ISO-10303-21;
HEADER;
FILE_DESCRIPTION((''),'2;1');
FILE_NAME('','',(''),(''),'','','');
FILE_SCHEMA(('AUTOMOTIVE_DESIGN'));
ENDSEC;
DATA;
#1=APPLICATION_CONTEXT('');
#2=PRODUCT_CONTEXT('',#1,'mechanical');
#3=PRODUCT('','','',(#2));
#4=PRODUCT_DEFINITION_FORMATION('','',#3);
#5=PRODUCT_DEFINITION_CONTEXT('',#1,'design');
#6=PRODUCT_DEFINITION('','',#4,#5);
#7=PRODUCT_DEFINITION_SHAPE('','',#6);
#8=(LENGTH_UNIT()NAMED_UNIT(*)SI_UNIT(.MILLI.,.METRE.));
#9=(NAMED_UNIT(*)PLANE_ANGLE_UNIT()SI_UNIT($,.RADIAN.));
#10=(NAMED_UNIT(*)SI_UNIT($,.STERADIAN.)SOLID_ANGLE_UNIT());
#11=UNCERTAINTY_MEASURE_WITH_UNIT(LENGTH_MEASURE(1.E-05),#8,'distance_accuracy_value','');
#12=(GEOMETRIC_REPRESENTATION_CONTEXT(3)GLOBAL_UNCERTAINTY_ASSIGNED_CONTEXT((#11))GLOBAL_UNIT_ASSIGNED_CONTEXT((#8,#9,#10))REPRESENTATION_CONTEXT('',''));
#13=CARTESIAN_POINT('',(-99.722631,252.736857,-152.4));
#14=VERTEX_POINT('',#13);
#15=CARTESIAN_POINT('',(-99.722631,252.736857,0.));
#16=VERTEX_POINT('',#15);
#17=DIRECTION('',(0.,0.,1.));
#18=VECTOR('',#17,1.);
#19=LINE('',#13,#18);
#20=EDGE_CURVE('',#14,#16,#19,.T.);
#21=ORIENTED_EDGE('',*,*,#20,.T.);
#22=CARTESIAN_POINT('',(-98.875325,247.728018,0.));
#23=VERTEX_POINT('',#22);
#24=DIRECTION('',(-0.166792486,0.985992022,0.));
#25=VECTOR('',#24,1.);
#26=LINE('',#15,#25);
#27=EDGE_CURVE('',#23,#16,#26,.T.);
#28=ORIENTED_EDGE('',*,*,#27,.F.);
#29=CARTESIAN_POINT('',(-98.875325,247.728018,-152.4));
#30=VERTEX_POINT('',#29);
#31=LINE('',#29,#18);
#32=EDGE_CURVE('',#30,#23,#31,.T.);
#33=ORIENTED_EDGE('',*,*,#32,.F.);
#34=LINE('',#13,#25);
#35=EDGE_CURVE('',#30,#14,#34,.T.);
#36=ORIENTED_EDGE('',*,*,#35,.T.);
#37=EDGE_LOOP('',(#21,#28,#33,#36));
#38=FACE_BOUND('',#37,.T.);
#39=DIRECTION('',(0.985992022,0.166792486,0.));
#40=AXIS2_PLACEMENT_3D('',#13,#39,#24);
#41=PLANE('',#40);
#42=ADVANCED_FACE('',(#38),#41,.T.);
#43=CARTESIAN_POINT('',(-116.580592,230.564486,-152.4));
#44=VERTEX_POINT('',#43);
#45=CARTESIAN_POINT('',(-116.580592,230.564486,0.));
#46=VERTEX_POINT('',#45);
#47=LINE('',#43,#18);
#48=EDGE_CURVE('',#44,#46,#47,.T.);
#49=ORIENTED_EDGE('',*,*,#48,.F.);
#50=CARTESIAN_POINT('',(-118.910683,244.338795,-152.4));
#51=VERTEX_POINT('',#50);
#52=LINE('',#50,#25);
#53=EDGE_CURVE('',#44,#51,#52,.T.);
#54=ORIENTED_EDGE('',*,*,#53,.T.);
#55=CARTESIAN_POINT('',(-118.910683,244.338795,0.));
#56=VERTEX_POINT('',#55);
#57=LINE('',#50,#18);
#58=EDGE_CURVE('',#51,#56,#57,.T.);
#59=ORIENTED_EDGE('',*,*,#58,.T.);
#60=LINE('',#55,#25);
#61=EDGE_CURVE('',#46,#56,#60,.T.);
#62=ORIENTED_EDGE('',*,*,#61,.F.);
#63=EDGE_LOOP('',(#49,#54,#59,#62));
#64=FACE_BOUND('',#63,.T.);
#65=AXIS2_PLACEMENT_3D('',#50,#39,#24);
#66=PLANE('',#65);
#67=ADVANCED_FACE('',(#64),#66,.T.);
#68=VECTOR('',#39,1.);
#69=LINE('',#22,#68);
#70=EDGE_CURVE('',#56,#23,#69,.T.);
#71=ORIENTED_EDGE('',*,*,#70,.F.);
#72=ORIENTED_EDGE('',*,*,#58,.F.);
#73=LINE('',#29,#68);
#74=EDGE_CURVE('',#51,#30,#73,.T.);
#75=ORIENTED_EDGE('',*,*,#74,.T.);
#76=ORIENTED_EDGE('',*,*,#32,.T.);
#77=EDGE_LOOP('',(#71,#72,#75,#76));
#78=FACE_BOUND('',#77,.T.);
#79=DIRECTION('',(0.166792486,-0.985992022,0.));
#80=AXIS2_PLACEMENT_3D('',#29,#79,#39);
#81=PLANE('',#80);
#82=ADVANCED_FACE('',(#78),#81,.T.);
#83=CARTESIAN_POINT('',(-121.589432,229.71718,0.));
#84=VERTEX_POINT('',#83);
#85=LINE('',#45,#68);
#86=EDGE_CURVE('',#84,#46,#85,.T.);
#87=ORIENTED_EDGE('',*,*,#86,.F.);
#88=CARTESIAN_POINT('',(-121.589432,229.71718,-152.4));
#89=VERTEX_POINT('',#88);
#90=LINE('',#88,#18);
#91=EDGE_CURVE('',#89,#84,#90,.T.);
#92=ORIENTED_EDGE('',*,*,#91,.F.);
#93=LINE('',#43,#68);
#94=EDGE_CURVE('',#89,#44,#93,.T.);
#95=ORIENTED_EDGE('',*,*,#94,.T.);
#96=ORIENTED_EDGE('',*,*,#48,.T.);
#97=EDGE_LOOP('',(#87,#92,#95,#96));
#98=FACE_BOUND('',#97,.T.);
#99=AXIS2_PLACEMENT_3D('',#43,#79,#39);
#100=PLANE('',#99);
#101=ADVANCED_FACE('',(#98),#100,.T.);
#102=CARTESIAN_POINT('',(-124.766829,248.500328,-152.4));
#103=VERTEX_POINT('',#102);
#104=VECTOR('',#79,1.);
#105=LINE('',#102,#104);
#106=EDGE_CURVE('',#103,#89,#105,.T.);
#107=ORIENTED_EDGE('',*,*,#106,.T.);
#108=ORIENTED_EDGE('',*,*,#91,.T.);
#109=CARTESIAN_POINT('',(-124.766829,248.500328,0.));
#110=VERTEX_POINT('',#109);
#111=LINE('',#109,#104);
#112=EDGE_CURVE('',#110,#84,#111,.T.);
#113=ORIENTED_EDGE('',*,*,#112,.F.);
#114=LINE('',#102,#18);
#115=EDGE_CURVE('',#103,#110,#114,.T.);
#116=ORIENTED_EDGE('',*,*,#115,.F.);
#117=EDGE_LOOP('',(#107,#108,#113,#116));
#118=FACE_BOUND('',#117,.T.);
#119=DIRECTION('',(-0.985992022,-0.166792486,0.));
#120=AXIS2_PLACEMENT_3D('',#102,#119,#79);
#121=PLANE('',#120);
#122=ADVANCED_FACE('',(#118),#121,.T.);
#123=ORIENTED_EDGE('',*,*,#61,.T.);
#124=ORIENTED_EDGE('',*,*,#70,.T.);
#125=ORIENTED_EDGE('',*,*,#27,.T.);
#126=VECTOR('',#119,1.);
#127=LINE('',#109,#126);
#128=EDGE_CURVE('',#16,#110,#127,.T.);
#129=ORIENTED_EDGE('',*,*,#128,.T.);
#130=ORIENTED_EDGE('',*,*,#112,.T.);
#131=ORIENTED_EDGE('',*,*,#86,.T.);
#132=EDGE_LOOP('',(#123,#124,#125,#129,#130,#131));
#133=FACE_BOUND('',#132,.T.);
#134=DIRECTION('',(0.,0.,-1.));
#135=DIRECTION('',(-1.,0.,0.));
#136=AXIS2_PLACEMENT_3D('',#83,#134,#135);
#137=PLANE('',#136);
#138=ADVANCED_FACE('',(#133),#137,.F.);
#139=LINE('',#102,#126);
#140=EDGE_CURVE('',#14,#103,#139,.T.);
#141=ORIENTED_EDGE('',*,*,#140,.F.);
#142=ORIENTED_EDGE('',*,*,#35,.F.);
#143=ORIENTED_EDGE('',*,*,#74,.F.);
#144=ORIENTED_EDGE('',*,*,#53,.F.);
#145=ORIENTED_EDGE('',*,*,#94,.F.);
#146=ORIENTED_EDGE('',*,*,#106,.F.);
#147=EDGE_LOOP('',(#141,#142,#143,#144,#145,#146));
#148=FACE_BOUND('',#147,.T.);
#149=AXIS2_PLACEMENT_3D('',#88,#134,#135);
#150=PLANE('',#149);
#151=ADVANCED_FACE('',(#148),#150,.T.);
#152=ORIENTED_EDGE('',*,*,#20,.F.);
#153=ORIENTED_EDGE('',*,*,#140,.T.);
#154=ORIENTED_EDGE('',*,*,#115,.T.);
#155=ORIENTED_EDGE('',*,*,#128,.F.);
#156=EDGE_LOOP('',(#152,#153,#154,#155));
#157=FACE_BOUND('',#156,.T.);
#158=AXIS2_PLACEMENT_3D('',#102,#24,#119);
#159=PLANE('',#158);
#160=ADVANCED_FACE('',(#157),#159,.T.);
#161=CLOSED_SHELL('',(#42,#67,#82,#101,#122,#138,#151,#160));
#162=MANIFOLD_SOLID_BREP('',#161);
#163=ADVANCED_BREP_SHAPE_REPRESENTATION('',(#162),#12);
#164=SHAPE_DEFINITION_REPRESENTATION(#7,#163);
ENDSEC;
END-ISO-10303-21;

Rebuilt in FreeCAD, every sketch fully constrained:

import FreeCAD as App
import Part
import Sketcher

V = App.Vector
Q = App.Units.Quantity


def add_polygon(sketch, points):
    """Adds a closed chain of lines whose ends are joined by coincident constraints."""
    first, n = sketch.GeometryCount, len(points)
    for a, b in zip(points, points[1:] + points[:1]):
        sketch.addGeometry(Part.LineSegment(App.Vector(*a, 0), App.Vector(*b, 0)), False)
    for i in range(n):
        sketch.addConstraint(Sketcher.Constraint("Coincident", first + i, 2, first + (i + 1) % n, 1))

doc = App.newDocument("Part")
body = doc.addObject("PartDesign::Body", "Body")

# Sketch on XY plane
sketch1 = doc.addObject("Sketcher::SketchObject", "Sketch")
body.addObject(sketch1)
sketch1.AttachmentSupport = (doc.XY_Plane, [""])
sketch1.MapMode = "FlatFace"
add_polygon(sketch1, [(-100, 253), (-125, 249), (-122, 230), (-117, 231), (-119, 244), (-99, 248)])  # lines 0-5
sketch1.addConstraint(Sketcher.Constraint("Perpendicular", 0, 1))
sketch1.addConstraint(Sketcher.Constraint("Perpendicular", 1, 2))
sketch1.addConstraint(Sketcher.Constraint("Perpendicular", 2, 3))
sketch1.addConstraint(Sketcher.Constraint("Perpendicular", 3, 4))
sketch1.addConstraint(Sketcher.Constraint("Perpendicular", 4, 5))
sketch1.addConstraint(Sketcher.Constraint("Equal", 2, 5))
sketch1.addConstraint(Sketcher.Constraint("Distance", 0, Q("1 in")))
sketch1.addConstraint(Sketcher.Constraint("Distance", 2, Q("0.2 in")))
sketch1.addConstraint(Sketcher.Constraint("Distance", 1, Q("0.75 in")))
sketch1.addConstraint(Sketcher.Constraint("DistanceX", 1, 2, 5, 2, Q("21.8668 mm")))
sketch1.addConstraint(Sketcher.Constraint("DistanceX", 0, 2, -1, 1, Q("124.766829 mm")))
sketch1.addConstraint(Sketcher.Constraint("DistanceY", -1, 1, 0, 2, Q("248.500328 mm")))
pad1 = doc.addObject("PartDesign::Pad", "Pad")
body.addObject(pad1)
pad1.Profile = sketch1
pad1.Length = Q("6 in")
pad1.Reversed = True

doc.recompute()
